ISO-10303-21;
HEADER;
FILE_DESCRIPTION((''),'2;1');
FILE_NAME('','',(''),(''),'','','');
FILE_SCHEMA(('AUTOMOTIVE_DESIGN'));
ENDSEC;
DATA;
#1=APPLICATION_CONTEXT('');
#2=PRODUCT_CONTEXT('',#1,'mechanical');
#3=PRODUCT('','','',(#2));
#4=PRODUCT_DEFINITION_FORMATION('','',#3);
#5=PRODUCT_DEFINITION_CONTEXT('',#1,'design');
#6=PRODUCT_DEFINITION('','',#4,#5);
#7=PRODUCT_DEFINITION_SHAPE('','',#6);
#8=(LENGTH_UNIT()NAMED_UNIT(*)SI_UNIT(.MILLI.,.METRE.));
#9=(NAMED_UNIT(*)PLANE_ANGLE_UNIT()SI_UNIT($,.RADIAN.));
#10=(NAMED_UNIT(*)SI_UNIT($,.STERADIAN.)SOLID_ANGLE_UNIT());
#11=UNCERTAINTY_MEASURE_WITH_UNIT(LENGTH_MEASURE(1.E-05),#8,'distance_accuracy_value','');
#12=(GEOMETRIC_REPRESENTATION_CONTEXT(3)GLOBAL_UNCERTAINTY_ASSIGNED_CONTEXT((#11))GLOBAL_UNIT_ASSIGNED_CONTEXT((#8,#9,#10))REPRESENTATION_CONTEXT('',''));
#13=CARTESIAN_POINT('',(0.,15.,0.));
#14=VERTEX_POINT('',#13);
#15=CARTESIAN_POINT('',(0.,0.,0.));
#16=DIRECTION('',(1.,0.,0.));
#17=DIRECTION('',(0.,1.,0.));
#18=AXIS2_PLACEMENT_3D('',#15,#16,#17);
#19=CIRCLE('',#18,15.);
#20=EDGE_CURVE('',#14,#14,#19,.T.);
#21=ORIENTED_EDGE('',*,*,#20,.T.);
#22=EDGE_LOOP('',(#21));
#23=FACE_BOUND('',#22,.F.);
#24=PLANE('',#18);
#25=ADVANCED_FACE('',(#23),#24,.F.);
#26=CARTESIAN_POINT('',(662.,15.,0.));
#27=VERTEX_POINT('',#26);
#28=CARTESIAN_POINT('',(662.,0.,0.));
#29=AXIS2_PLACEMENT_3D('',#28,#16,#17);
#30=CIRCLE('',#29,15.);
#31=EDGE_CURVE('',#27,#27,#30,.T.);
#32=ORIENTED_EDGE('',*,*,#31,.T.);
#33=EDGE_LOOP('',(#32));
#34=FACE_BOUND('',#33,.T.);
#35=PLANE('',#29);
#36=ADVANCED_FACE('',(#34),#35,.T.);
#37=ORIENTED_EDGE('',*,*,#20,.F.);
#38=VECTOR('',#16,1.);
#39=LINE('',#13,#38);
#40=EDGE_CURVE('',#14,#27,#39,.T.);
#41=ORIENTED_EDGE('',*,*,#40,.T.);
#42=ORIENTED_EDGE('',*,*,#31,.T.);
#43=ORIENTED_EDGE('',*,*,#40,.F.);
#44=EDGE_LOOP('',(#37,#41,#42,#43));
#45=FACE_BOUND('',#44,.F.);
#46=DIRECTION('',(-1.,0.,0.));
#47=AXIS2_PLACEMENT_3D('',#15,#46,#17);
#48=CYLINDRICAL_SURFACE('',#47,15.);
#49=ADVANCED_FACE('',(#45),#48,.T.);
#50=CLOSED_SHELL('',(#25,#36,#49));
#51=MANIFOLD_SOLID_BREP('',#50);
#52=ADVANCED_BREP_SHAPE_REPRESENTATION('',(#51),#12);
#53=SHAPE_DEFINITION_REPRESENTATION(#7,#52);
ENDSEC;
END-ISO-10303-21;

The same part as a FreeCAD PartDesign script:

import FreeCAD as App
import Part
import Sketcher
from FreeCAD import Vector
Q = App.Units.Quantity

doc = App.newDocument("Part")
body = doc.addObject("PartDesign::Body", "Body")

sketch1 = body.newObject("Sketcher::SketchObject", "Sketch")
sketch1.AttachmentSupport = (doc.getObject("YZ_Plane"), [""])
sketch1.MapMode = "FlatFace"
sketch1.addGeometry(Part.Circle(Vector(0, 0, 0), Vector(0, 0, 1), 15), False)
sketch1.addConstraint(Sketcher.Constraint("Coincident", 0, 3, -1, 1))
sketch1.addConstraint(Sketcher.Constraint("Diameter", 0, Q("1.1811 in")))
pad1 = body.newObject("PartDesign::Pad", "Pad")
pad1.Profile = sketch1
pad1.Length = Q("26.0629921 in")

doc.recompute()
